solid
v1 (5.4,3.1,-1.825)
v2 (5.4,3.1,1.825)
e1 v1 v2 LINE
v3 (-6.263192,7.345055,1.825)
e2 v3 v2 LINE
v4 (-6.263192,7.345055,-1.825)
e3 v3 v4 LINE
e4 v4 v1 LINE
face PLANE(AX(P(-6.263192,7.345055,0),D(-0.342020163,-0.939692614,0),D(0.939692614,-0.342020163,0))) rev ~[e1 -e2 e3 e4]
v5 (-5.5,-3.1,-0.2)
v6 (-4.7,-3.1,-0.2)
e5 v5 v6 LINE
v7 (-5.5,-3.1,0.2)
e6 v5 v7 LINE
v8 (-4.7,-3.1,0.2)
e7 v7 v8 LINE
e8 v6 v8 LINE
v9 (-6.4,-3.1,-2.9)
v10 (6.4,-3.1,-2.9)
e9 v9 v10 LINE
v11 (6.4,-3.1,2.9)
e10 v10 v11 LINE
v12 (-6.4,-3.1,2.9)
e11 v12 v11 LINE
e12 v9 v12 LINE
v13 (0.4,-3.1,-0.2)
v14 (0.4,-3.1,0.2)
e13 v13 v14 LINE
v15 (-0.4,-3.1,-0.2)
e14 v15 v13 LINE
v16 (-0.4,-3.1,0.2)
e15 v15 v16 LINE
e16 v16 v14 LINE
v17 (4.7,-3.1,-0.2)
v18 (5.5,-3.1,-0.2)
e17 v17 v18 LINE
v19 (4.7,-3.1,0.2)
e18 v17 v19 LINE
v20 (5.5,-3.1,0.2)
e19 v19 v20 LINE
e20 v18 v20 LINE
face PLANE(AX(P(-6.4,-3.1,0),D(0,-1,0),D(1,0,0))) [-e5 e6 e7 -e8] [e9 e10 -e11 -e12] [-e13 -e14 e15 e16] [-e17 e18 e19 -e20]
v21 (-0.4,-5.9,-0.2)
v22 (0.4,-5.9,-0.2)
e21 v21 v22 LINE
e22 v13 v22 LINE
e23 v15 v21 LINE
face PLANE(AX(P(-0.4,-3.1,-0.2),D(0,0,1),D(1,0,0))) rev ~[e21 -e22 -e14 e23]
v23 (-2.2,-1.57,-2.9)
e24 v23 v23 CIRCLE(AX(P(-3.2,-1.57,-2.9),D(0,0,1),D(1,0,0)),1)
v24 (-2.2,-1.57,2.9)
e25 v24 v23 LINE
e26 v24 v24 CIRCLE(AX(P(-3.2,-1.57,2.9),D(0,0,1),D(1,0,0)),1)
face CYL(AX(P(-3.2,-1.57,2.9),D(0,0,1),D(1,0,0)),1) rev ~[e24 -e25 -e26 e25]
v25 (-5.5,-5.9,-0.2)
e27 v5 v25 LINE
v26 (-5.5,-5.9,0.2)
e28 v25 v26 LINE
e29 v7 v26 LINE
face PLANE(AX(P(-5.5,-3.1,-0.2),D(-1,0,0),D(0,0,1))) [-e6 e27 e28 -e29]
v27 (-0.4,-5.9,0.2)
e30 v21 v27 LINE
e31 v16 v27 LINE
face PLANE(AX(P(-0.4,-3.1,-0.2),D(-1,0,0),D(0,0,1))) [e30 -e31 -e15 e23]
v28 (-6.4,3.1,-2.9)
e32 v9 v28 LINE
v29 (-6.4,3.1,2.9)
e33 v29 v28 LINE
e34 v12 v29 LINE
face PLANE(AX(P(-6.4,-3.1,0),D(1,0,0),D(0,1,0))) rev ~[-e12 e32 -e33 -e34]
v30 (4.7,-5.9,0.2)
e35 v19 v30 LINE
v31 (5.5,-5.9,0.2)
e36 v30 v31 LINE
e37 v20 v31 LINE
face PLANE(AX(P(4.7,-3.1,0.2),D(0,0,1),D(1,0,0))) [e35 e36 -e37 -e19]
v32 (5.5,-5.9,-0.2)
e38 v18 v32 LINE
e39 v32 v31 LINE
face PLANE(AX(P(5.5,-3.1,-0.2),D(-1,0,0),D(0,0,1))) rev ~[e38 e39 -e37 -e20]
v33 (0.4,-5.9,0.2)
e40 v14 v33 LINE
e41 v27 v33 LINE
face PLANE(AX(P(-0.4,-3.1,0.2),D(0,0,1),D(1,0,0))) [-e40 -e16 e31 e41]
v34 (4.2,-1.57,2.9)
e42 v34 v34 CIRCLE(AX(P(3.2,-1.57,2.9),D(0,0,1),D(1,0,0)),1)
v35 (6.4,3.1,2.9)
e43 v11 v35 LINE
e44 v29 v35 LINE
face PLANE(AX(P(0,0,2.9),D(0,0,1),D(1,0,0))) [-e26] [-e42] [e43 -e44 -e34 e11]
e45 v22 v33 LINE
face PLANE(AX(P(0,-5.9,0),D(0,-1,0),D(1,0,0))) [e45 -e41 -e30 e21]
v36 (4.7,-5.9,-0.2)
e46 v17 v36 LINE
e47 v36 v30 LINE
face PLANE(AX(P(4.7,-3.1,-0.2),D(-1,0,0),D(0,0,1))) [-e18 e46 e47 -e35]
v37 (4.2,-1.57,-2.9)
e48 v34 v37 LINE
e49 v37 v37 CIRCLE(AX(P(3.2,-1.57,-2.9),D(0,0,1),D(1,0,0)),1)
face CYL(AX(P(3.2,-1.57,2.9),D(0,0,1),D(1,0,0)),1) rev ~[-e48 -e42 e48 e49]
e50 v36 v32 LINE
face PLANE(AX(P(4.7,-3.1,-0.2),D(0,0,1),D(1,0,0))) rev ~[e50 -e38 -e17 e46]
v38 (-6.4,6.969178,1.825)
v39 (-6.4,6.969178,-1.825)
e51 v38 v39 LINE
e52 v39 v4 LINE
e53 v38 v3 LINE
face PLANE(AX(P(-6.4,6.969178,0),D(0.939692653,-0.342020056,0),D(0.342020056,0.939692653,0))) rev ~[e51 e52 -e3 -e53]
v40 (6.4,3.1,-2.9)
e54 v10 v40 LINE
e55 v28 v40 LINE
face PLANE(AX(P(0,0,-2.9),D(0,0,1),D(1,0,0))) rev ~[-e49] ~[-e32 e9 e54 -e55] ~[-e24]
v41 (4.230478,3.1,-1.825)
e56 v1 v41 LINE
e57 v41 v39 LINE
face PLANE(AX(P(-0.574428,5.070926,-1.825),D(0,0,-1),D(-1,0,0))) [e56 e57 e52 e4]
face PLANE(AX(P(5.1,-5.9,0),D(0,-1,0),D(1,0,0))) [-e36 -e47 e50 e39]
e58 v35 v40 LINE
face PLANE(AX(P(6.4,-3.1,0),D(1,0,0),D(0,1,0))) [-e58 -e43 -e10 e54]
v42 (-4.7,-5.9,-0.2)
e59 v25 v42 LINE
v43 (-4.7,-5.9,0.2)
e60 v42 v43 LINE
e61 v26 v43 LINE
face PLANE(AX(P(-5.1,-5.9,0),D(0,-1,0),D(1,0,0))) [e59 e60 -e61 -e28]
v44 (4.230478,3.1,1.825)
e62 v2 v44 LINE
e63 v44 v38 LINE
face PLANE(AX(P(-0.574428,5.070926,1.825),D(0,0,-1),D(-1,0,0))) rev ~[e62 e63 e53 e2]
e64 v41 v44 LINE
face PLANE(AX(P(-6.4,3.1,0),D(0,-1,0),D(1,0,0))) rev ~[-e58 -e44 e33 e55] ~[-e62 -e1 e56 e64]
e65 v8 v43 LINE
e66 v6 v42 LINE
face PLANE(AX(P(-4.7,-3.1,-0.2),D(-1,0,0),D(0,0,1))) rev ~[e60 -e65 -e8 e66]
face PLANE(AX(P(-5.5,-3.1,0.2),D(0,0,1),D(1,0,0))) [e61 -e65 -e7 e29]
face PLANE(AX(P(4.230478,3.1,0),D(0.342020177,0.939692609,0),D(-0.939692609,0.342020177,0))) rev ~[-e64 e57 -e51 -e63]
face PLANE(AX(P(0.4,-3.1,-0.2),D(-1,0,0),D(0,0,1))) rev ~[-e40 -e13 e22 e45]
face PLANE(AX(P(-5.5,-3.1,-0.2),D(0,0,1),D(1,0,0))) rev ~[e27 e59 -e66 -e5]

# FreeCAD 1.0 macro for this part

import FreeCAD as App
import Part
import Sketcher
Q = App.Units.Quantity

doc = App.newDocument("Part")
body = doc.addObject("PartDesign::Body", "Body")

sketch1 = body.newObject("Sketcher::SketchObject", "Sketch")
sketch1.AttachmentSupport = (doc.getObject("XY_Plane"), [""])
sketch1.MapMode = "FlatFace"
sketch1.addGeometry(Part.LineSegment(App.Vector(-6, 3, 0), App.Vector(-6, -3, 0)), False)
sketch1.addGeometry(Part.LineSegment(App.Vector(-6, -3, 0), App.Vector(6, -3, 0)), False)
sketch1.addGeometry(Part.LineSegment(App.Vector(6, -3, 0), App.Vector(6, 3, 0)), False)
sketch1.addGeometry(Part.LineSegment(App.Vector(6, 3, 0), App.Vector(-6, 3, 0)), False)
sketch1.addConstraint(Sketcher.Constraint("Coincident", 0, 2, 1, 1))
sketch1.addConstraint(Sketcher.Constraint("Coincident", 1, 2, 2, 1))
sketch1.addConstraint(Sketcher.Constraint("Coincident", 2, 2, 3, 1))
sketch1.addConstraint(Sketcher.Constraint("Coincident", 3, 2, 0, 1))
sketch1.addConstraint(Sketcher.Constraint("Vertical", 0))
sketch1.addConstraint(Sketcher.Constraint("Horizontal", 1))
sketch1.addConstraint(Sketcher.Constraint("Vertical", 2))
sketch1.addConstraint(Sketcher.Constraint("Horizontal", 3))
sketch1.addConstraint(Sketcher.Constraint("Symmetric", 0, 2, 2, 2, -1, 1))
sketch1.addConstraint(Sketcher.Constraint("DistanceX", 1, 1, 1, 2, 12.8))
sketch1.addConstraint(Sketcher.Constraint("DistanceY", 0, 2, 0, 1, 6.2))
pad1 = body.newObject("PartDesign::Pad", "Pad")
pad1.Profile = sketch1
pad1.Length = 5.8
pad1.Midplane = True

sketch2 = body.newObject("Sketcher::SketchObject", "Sketch001")
sketch2.AttachmentSupport = (doc.getObject("XZ_Plane"), [""])
sketch2.MapMode = "FlatFace"
sketch2.AttachmentOffset = App.Placement(App.Vector(0, 0, 3.1), App.Rotation())
sketch2.addGeometry(Part.LineSegment(App.Vector(-5.5, 0.2, 0), App.Vector(-5.5, -0.2, 0)), False)
sketch2.addGeometry(Part.LineSegment(App.Vector(-5.5, -0.2, 0), App.Vector(-4.7, -0.2, 0)), False)
sketch2.addGeometry(Part.LineSegment(App.Vector(-4.7, -0.2, 0), App.Vector(-4.7, 0.2, 0)), False)
sketch2.addGeometry(Part.LineSegment(App.Vector(-4.7, 0.2, 0), App.Vector(-5.5, 0.2, 0)), False)
sketch2.addGeometry(Part.LineSegment(App.Vector(-0.4, 0.2, 0), App.Vector(-0.4, -0.2, 0)), False)
sketch2.addGeometry(Part.LineSegment(App.Vector(-0.4, -0.2, 0), App.Vector(0.4, -0.2, 0)), False)
sketch2.addGeometry(Part.LineSegment(App.Vector(0.4, -0.2, 0), App.Vector(0.4, 0.2, 0)), False)
sketch2.addGeometry(Part.LineSegment(App.Vector(0.4, 0.2, 0), App.Vector(-0.4, 0.2, 0)), False)
sketch2.addGeometry(Part.LineSegment(App.Vector(4.7, 0.2, 0), App.Vector(4.7, -0.2, 0)), False)
sketch2.addGeometry(Part.LineSegment(App.Vector(4.7, -0.2, 0), App.Vector(5.5, -0.2, 0)), False)
sketch2.addGeometry(Part.LineSegment(App.Vector(5.5, -0.2, 0), App.Vector(5.5, 0.2, 0)), False)
sketch2.addGeometry(Part.LineSegment(App.Vector(5.5, 0.2, 0), App.Vector(4.7, 0.2, 0)), False)
sketch2.addConstraint(Sketcher.Constraint("Coincident", 0, 2, 1, 1))
sketch2.addConstraint(Sketcher.Constraint("Coincident", 1, 2, 2, 1))
sketch2.addConstraint(Sketcher.Constraint("Coincident", 2, 2, 3, 1))
sketch2.addConstraint(Sketcher.Constraint("Coincident", 3, 2, 0, 1))
sketch2.addConstraint(Sketcher.Constraint("Coincident", 4, 2, 5, 1))
sketch2.addConstraint(Sketcher.Constraint("Coincident", 5, 2, 6, 1))
sketch2.addConstraint(Sketcher.Constraint("Coincident", 6, 2, 7, 1))
sketch2.addConstraint(Sketcher.Constraint("Coincident", 7, 2, 4, 1))
sketch2.addConstraint(Sketcher.Constraint("Coincident", 8, 2, 9, 1))
sketch2.addConstraint(Sketcher.Constraint("Coincident", 9, 2, 10, 1))
sketch2.addConstraint(Sketcher.Constraint("Coincident", 10, 2, 11, 1))
sketch2.addConstraint(Sketcher.Constraint("Coincident", 11, 2, 8, 1))
sketch2.addConstraint(Sketcher.Constraint("Vertical", 0))
sketch2.addConstraint(Sketcher.Constraint("Horizontal", 1))
sketch2.addConstraint(Sketcher.Constraint("Vertical", 2))
sketch2.addConstraint(Sketcher.Constraint("Horizontal", 3))
sketch2.addConstraint(Sketcher.Constraint("Vertical", 4))
sketch2.addConstraint(Sketcher.Constraint("Horizontal", 5))
sketch2.addConstraint(Sketcher.Constraint("Vertical", 6))
sketch2.addConstraint(Sketcher.Constraint("Horizontal", 7))
sketch2.addConstraint(Sketcher.Constraint("Vertical", 8))
sketch2.addConstraint(Sketcher.Constraint("Horizontal", 9))
sketch2.addConstraint(Sketcher.Constraint("Vertical", 10))
sketch2.addConstraint(Sketcher.Constraint("Horizontal", 11))
sketch2.addConstraint(Sketcher.Constraint("Symmetric", 4, 2, 6, 2, -1, 1))
sketch2.addConstraint(Sketcher.Constraint("Symmetric", 2, 2, 8, 2, -1, 1))
sketch2.addConstraint(Sketcher.Constraint("Symmetric", 0, 2, 10, 2, -1, 1))
sketch2.addConstraint(Sketcher.Constraint("Horizontal", 1, 2, 4, 2))
sketch2.addConstraint(Sketcher.Constraint("Horizontal", 3, 2, 6, 2))
sketch2.addConstraint(Sketcher.Constraint("Equal", 3, 5))
sketch2.addConstraint(Sketcher.Constraint("DistanceX", 1, 1, 1, 2, 0.8))
sketch2.addConstraint(Sketcher.Constraint("DistanceY", 0, 2, 0, 1, 0.4))
sketch2.addConstraint(Sketcher.Constraint("DistanceX", 0, 2, -1, 1, 5.5))
pad2 = body.newObject("PartDesign::Pad", "Pad001")
pad2.Profile = sketch2
pad2.Length = 2.8

sketch3 = body.newObject("Sketcher::SketchObject", "Sketch002")
sketch3.AttachmentSupport = (doc.getObject("XY_Plane"), [""])
sketch3.MapMode = "FlatFace"
sketch3.addGeometry(Part.LineSegment(App.Vector(-6.4, 6.97, 0), App.Vector(4.23, 3.1, 0)), False)
sketch3.addGeometry(Part.LineSegment(App.Vector(4.23, 3.1, 0), App.Vector(5.4, 3.1, 0)), False)
sketch3.addGeometry(Part.LineSegment(App.Vector(5.4, 3.1, 0), App.Vector(-6.26, 7.35, 0)), False)
sketch3.addGeometry(Part.LineSegment(App.Vector(-6.26, 7.35, 0), App.Vector(-6.4, 6.97, 0)), False)
sketch3.addConstraint(Sketcher.Constraint("Coincident", 0, 2, 1, 1))
sketch3.addConstraint(Sketcher.Constraint("Coincident", 1, 2, 2, 1))
sketch3.addConstraint(Sketcher.Constraint("Coincident", 2, 2, 3, 1))
sketch3.addConstraint(Sketcher.Constraint("Coincident", 3, 2, 0, 1))
sketch3.addConstraint(Sketcher.Constraint("Horizontal", 1))
sketch3.addConstraint(Sketcher.Constraint("Parallel", 0, 2))
sketch3.addConstraint(Sketcher.Constraint("Perpendicular", 2, 3))
sketch3.addConstraint(Sketcher.Constraint("Angle", 0, Q("-20.000002 deg")))
sketch3.addConstraint(Sketcher.Constraint("Distance", 3, 0.4))
sketch3.addConstraint(Sketcher.Constraint("DistanceY", -1, 1, 0, 2, 3.1))
sketch3.addConstraint(Sketcher.Constraint("DistanceX", -1, 1, 1, 2, 5.4))
sketch3.addConstraint(Sketcher.Constraint("DistanceX", 3, 2, -1, 1, 6.4))
pad3 = body.newObject("PartDesign::Pad", "Pad002")
pad3.Profile = sketch3
pad3.Length = 3.65
pad3.Midplane = True

sketch4 = body.newObject("Sketcher::SketchObject", "Sketch003")
sketch4.AttachmentSupport = (doc.getObject("XY_Plane"), [""])
sketch4.MapMode = "FlatFace"
sketch4.AttachmentOffset = App.Placement(App.Vector(0, 0, 2.9), App.Rotation())
sketch4.addGeometry(Part.Circle(App.Vector(-3.2, -1.6, 0), App.Vector(0, 0, 1), 1), False)
sketch4.addGeometry(Part.Circle(App.Vector(3.2, -1.6, 0), App.Vector(0, 0, 1), 1), False)
sketch4.addConstraint(Sketcher.Constraint("Equal", 0, 1))
sketch4.addConstraint(Sketcher.Constraint("Symmetric", 0, 3, 1, 3, -2))
sketch4.addConstraint(Sketcher.Constraint("Diameter", 0, 2.0))
sketch4.addConstraint(Sketcher.Constraint("DistanceX", 0, 3, -1, 1, 3.2))
sketch4.addConstraint(Sketcher.Constraint("DistanceY", 0, 3, -1, 1, 1.57))
pocket1 = body.newObject("PartDesign::Pocket", "Pocket")
pocket1.Profile = sketch4
pocket1.Type = "ThroughAll"

doc.recompute()
